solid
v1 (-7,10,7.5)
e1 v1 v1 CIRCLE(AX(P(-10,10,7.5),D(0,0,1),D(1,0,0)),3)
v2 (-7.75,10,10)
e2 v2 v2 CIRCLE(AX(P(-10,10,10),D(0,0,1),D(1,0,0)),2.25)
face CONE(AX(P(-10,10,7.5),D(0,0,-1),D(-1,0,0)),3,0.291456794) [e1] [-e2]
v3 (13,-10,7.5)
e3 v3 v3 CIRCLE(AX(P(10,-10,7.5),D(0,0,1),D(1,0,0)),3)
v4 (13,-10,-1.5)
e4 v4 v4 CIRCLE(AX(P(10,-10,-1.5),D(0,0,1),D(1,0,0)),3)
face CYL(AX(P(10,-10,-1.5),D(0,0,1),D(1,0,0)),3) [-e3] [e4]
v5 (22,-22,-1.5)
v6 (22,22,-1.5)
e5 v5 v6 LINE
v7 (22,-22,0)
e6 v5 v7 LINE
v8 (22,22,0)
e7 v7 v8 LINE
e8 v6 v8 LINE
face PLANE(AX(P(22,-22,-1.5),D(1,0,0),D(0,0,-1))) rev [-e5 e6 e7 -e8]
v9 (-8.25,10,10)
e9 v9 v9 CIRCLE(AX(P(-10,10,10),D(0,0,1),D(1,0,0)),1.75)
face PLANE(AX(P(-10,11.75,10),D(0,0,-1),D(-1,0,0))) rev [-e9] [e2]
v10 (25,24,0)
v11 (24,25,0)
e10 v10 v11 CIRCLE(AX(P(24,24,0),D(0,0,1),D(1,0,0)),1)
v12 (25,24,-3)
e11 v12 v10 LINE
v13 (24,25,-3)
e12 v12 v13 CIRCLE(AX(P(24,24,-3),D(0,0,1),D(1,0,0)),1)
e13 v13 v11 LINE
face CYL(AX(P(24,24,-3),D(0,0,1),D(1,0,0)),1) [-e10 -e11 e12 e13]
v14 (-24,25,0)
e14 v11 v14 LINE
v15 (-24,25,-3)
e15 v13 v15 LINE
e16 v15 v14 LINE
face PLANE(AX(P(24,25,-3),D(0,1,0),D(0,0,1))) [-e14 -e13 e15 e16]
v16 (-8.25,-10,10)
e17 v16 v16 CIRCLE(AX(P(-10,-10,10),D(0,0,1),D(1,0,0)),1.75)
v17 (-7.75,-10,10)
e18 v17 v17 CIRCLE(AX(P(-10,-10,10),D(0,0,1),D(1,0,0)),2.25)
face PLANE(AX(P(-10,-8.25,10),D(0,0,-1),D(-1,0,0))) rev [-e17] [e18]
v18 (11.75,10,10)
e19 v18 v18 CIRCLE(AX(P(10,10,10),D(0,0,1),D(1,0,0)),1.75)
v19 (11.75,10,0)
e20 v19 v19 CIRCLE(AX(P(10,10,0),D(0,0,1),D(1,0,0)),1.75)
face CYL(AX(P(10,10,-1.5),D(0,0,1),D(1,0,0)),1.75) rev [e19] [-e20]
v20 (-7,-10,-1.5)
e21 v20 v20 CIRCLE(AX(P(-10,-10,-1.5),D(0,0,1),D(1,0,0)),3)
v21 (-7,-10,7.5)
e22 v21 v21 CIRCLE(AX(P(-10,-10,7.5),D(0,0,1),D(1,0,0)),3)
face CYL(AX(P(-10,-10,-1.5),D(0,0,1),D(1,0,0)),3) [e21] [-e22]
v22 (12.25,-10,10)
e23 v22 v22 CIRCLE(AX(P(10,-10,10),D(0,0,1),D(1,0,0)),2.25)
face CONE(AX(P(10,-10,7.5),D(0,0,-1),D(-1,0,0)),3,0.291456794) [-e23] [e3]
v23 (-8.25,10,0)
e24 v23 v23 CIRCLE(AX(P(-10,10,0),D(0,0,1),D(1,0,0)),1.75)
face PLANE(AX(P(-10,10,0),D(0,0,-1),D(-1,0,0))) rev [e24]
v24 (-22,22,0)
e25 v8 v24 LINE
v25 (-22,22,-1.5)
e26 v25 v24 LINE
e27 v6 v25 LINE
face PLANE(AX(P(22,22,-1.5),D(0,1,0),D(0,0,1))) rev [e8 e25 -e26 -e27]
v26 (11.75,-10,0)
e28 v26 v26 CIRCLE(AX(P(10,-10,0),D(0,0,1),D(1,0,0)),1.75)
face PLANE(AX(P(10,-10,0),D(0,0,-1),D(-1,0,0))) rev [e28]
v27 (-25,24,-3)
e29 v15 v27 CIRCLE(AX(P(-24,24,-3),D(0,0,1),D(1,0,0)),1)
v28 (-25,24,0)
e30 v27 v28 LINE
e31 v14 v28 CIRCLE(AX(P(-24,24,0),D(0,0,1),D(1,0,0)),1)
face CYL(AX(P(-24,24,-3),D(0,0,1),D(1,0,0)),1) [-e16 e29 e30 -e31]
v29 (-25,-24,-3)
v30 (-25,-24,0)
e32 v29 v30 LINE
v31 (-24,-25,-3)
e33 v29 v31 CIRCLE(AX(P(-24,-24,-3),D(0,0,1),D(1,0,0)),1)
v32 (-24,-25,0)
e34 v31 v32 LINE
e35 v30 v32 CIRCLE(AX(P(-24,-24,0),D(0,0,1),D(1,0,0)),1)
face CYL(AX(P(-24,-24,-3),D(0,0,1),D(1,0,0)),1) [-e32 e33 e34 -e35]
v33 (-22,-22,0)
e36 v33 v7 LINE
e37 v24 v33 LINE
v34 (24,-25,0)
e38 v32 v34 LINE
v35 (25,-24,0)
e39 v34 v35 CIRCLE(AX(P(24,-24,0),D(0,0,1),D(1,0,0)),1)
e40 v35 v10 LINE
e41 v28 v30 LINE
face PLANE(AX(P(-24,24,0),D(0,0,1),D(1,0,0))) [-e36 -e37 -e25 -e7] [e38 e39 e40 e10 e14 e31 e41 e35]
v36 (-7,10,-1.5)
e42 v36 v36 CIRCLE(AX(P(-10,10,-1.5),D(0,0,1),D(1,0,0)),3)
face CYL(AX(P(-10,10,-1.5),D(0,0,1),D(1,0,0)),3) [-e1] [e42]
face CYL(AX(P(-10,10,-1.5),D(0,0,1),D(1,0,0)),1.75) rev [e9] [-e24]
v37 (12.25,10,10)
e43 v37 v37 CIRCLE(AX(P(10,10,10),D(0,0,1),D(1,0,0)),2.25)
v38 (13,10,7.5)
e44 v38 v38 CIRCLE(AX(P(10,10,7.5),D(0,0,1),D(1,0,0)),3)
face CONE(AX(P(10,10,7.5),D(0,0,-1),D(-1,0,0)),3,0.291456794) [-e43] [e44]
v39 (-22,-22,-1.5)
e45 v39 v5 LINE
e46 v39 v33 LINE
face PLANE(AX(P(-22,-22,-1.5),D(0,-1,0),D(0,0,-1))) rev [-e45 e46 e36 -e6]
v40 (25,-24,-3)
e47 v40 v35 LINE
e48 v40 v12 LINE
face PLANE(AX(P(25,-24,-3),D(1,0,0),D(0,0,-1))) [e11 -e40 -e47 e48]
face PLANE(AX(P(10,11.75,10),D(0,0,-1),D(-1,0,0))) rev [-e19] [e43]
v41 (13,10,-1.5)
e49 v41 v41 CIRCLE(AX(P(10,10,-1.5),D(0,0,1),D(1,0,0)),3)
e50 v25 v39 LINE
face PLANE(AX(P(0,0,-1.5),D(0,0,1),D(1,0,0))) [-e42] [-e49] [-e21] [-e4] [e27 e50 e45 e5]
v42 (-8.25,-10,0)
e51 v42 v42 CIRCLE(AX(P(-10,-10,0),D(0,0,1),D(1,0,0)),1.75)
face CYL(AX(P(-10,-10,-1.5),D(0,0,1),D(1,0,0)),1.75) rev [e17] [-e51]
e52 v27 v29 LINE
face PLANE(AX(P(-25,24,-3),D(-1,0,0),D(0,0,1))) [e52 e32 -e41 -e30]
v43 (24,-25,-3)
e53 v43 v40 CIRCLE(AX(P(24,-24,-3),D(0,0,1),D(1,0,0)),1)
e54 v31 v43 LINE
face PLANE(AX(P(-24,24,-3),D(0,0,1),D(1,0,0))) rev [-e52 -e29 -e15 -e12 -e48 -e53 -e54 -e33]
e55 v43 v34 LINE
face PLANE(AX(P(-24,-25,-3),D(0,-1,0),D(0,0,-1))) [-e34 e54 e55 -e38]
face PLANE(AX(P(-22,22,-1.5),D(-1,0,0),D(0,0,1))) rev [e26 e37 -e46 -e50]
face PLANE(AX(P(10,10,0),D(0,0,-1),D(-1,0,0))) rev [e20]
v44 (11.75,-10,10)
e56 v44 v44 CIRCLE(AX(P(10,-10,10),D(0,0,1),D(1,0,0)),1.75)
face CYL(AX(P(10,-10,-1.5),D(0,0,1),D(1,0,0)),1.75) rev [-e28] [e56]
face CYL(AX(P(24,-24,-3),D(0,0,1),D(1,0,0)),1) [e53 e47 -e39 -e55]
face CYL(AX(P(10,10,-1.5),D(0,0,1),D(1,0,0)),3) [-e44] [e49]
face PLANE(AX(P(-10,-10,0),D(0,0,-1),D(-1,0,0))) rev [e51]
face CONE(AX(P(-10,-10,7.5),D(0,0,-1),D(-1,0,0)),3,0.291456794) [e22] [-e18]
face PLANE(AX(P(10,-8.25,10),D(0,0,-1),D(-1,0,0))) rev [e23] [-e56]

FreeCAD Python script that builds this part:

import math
import FreeCAD as App
import Part
import Sketcher

V = App.Vector

doc = App.newDocument("Part")
body = doc.addObject("PartDesign::Body", "Body")

# Sketch on XY plane
sketch1 = body.newObject("Sketcher::SketchObject", "Sketch")
sketch1.AttachmentSupport = (doc.getObject("XY_Plane"), [""])
sketch1.MapMode = "FlatFace"
sketch1.addGeometry([
    Part.LineSegment(V(-25, 24, 0), V(-25, -24, 0)),  # 0
    Part.ArcOfCircle(Part.Circle(V(-24, -24, 0), V(0, 0, 1), 1), math.radians(-180), math.radians(-90)),  # 1
    Part.LineSegment(V(-24, -25, 0), V(24, -25, 0)),  # 2
    Part.ArcOfCircle(Part.Circle(V(24, -24, 0), V(0, 0, 1), 1), math.radians(-90), math.radians(0)),  # 3
    Part.LineSegment(V(25, -24, 0), V(25, 24, 0)),  # 4
    Part.ArcOfCircle(Part.Circle(V(24, 24, 0), V(0, 0, 1), 1), math.radians(0), math.radians(90)),  # 5
    Part.LineSegment(V(24, 25, 0), V(-24, 25, 0)),  # 6
    Part.ArcOfCircle(Part.Circle(V(-24, 24, 0), V(0, 0, 1), 1), math.radians(90), math.radians(180)),  # 7
], False)
sketch1.addConstraint([
    Sketcher.Constraint("Tangent", 0, 2, 1, 1),
    Sketcher.Constraint("Tangent", 1, 2, 2, 1),
    Sketcher.Constraint("Tangent", 2, 2, 3, 1),
    Sketcher.Constraint("Tangent", 3, 2, 4, 1),
    Sketcher.Constraint("Tangent", 4, 2, 5, 1),
    Sketcher.Constraint("Tangent", 5, 2, 6, 1),
    Sketcher.Constraint("Tangent", 6, 2, 7, 1),
    Sketcher.Constraint("Tangent", 7, 2, 0, 1),
    Sketcher.Constraint("Vertical", 0),
    Sketcher.Constraint("Horizontal", 2),
    Sketcher.Constraint("Vertical", 4),
    Sketcher.Constraint("Horizontal", 6),
    Sketcher.Constraint("Equal", 1, 3),
    Sketcher.Constraint("Equal", 3, 5),
    Sketcher.Constraint("Equal", 5, 7),
    Sketcher.Constraint("Symmetric", 1, 3, 5, 3, -1, 1),
    Sketcher.Constraint("Equal", 6, 0),
    Sketcher.Constraint("Radius", 1, 1.0),
    Sketcher.Constraint("DistanceX", 2, 1, 2, 2, 48.0),
])
pad1 = body.newObject("PartDesign::Pad", "Pad")
pad1.Profile = sketch1
pad1.Length = 3
pad1.Reversed = True

# Sketch on XY plane
sketch2 = body.newObject("Sketcher::SketchObject", "Sketch001")
sketch2.AttachmentSupport = (doc.getObject("XY_Plane"), [""])
sketch2.MapMode = "FlatFace"
sketch2.addGeometry([
    Part.LineSegment(V(-22, 22, 0), V(-22, -22, 0)),
    Part.LineSegment(V(-22, -22, 0), V(22, -22, 0)),
    Part.LineSegment(V(22, -22, 0), V(22, 22, 0)),
    Part.LineSegment(V(22, 22, 0), V(-22, 22, 0)),
], False)
sketch2.addConstraint([
    Sketcher.Constraint("Coincident", 0, 2, 1, 1),
    Sketcher.Constraint("Coincident", 1, 2, 2, 1),
    Sketcher.Constraint("Coincident", 2, 2, 3, 1),
    Sketcher.Constraint("Coincident", 3, 2, 0, 1),
    Sketcher.Constraint("Vertical", 0),
    Sketcher.Constraint("Horizontal", 1),
    Sketcher.Constraint("Vertical", 2),
    Sketcher.Constraint("Horizontal", 3),
    Sketcher.Constraint("Symmetric", 0, 2, 2, 2, -1, 1),
    Sketcher.Constraint("Equal", 3, 0),
    Sketcher.Constraint("DistanceX", 1, 1, 1, 2, 44.0),
])
pocket1 = body.newObject("PartDesign::Pocket", "Pocket")
pocket1.Profile = sketch2
pocket1.Length = 1.5

# Sketch on YZ plane
sketch3 = body.newObject("Sketcher::SketchObject", "Sketch002")
sketch3.AttachmentSupport = (doc.getObject("YZ_Plane"), [""])
sketch3.MapMode = "FlatFace"
sketch3.AttachmentOffset = App.Placement(V(0, 0, -10), App.Rotation())
sketch3.addGeometry([
    Part.LineSegment(V(11.75, 0, 0), V(10, 0, 0)),  # 0
    Part.LineSegment(V(10, 0, 0), V(10, -1.5, 0)),  # 1
    Part.LineSegment(V(10, -1.5, 0), V(13, -1.5, 0)),  # 2
    Part.LineSegment(V(13, -1.5, 0), V(13, 7.5, 0)),  # 3
    Part.LineSegment(V(13, 7.5, 0), V(12.25, 10, 0)),  # 4
    Part.LineSegment(V(12.25, 10, 0), V(11.75, 10, 0)),  # 5
    Part.LineSegment(V(11.75, 10, 0), V(11.75, 0, 0)),  # 6
], False)
sketch3.addGeometry(Part.LineSegment(V(10, -1.5, 0), V(10, 10, 0)), True)  # axis
sketch3.addConstraint([
    Sketcher.Constraint("Coincident", 0, 2, 1, 1),
    Sketcher.Constraint("Coincident", 1, 2, 2, 1),
    Sketcher.Constraint("Coincident", 2, 2, 3, 1),
    Sketcher.Constraint("Coincident", 3, 2, 4, 1),
    Sketcher.Constraint("Coincident", 4, 2, 5, 1),
    Sketcher.Constraint("Coincident", 5, 2, 6, 1),
    Sketcher.Constraint("Coincident", 6, 2, 0, 1),
    Sketcher.Constraint("Horizontal", 0),
    Sketcher.Constraint("Vertical", 1),
    Sketcher.Constraint("Horizontal", 2),
    Sketcher.Constraint("Vertical", 3),
    Sketcher.Constraint("Horizontal", 5),
    Sketcher.Constraint("Vertical", 6),
    Sketcher.Constraint("Vertical", 7),
    Sketcher.Constraint("Coincident", 7, 1, 1, 2),
    Sketcher.Constraint("PointOnObject", 0, 2, -1),
    Sketcher.Constraint("Horizontal", 5, 2, 7, 2),
    Sketcher.Constraint("DistanceX", 2, 1, 2, 2, 3.0),
    Sketcher.Constraint("DistanceY", 3, 1, 3, 2, 9.0),
    Sketcher.Constraint("DistanceY", 6, 2, 6, 1, 10.0),
    Sketcher.Constraint("DistanceX", 5, 2, 5, 1, 0.5),
    Sketcher.Constraint("DistanceY", 1, 2, 1, 1, 1.5),
    Sketcher.Constraint("DistanceX", -1, 1, 0, 2, 10.0),
    Sketcher.Constraint("DistanceX", 0, 2, 0, 1, 1.75),
])
revolution = body.newObject("PartDesign::Revolution", "Revolution")
revolution.Profile = sketch3
revolution.ReferenceAxis = (sketch3, ["Axis0"])
revolution.Angle = 360

# Sketch on YZ plane
sketch4 = body.newObject("Sketcher::SketchObject", "Sketch003")
sketch4.AttachmentSupport = (doc.getObject("YZ_Plane"), [""])
sketch4.MapMode = "FlatFace"
sketch4.AttachmentOffset = App.Placement(V(0, 0, 10), App.Rotation())
sketch4.addGeometry([
    Part.LineSegment(V(11.75, 0, 0), V(10, 0, 0)),  # 0
    Part.LineSegment(V(10, 0, 0), V(10, -1.5, 0)),  # 1
    Part.LineSegment(V(10, -1.5, 0), V(13, -1.5, 0)),  # 2
    Part.LineSegment(V(13, -1.5, 0), V(13, 7.5, 0)),  # 3
    Part.LineSegment(V(13, 7.5, 0), V(12.25, 10, 0)),  # 4
    Part.LineSegment(V(12.25, 10, 0), V(11.75, 10, 0)),  # 5
    Part.LineSegment(V(11.75, 10, 0), V(11.75, 0, 0)),  # 6
], False)
sketch4.addGeometry(Part.LineSegment(V(10, -1.5, 0), V(10, 10, 0)), True)  # axis
sketch4.addConstraint([
    Sketcher.Constraint("Coincident", 0, 2, 1, 1),
    Sketcher.Constraint("Coincident", 1, 2, 2, 1),
    Sketcher.Constraint("Coincident", 2, 2, 3, 1),
    Sketcher.Constraint("Coincident", 3, 2, 4, 1),
    Sketcher.Constraint("Coincident", 4, 2, 5, 1),
    Sketcher.Constraint("Coincident", 5, 2, 6, 1),
    Sketcher.Constraint("Coincident", 6, 2, 0, 1),
    Sketcher.Constraint("Horizontal", 0),
    Sketcher.Constraint("Vertical", 1),
    Sketcher.Constraint("Horizontal", 2),
    Sketcher.Constraint("Vertical", 3),
    Sketcher.Constraint("Horizontal", 5),
    Sketcher.Constraint("Vertical", 6),
    Sketcher.Constraint("Vertical", 7),
    Sketcher.Constraint("Coincident", 7, 1, 1, 2),
    Sketcher.Constraint("PointOnObject", 0, 2, -1),
    Sketcher.Constraint("Horizontal", 5, 2, 7, 2),
    Sketcher.Constraint("DistanceX", 2, 1, 2, 2, 3.0),
    Sketcher.Constraint("DistanceY", 3, 1, 3, 2, 9.0),
    Sketcher.Constraint("DistanceY", 6, 2, 6, 1, 10.0),
    Sketcher.Constraint("DistanceX", 5, 2, 5, 1, 0.5),
    Sketcher.Constraint("DistanceY", 1, 2, 1, 1, 1.5),
    Sketcher.Constraint("DistanceX", -1, 1, 0, 2, 10.0),
    Sketcher.Constraint("DistanceX", 0, 2, 0, 1, 1.75),
])
revolution2 = body.newObject("PartDesign::Revolution", "Revolution001")
revolution2.Profile = sketch4
revolution2.ReferenceAxis = (sketch4, ["Axis0"])
revolution2.Angle = 360

# Sketch on YZ plane
sketch5 = body.newObject("Sketcher::SketchObject", "Sketch004")
sketch5.AttachmentSupport = (doc.getObject("YZ_Plane"), [""])
sketch5.MapMode = "FlatFace"
sketch5.AttachmentOffset = App.Placement(V(0, 0, 10), App.Rotation())
sketch5.addGeometry([
    Part.LineSegment(V(-8.25, 0, 0), V(-10, 0, 0)),  # 0
    Part.LineSegment(V(-10, 0, 0), V(-10, -1.5, 0)),  # 1
    Part.LineSegment(V(-10, -1.5, 0), V(-7, -1.5, 0)),  # 2
    Part.LineSegment(V(-7, -1.5, 0), V(-7, 7.5, 0)),  # 3
    Part.LineSegment(V(-7, 7.5, 0), V(-7.75, 10, 0)),  # 4
    Part.LineSegment(V(-7.75, 10, 0), V(-8.25, 10, 0)),  # 5
    Part.LineSegment(V(-8.25, 10, 0), V(-8.25, 0, 0)),  # 6
], False)
sketch5.addGeometry(Part.LineSegment(V(-10, -1.5, 0), V(-10, 10, 0)), True)  # axis
sketch5.addConstraint([
    Sketcher.Constraint("Coincident", 0, 2, 1, 1),
    Sketcher.Constraint("Coincident", 1, 2, 2, 1),
    Sketcher.Constraint("Coincident", 2, 2, 3, 1),
    Sketcher.Constraint("Coincident", 3, 2, 4, 1),
    Sketcher.Constraint("Coincident", 4, 2, 5, 1),
    Sketcher.Constraint("Coincident", 5, 2, 6, 1),
    Sketcher.Constraint("Coincident", 6, 2, 0, 1),
    Sketcher.Constraint("Horizontal", 0),
    Sketcher.Constraint("Vertical", 1),
    Sketcher.Constraint("Horizontal", 2),
    Sketcher.Constraint("Vertical", 3),
    Sketcher.Constraint("Horizontal", 5),
    Sketcher.Constraint("Vertical", 6),
    Sketcher.Constraint("Vertical", 7),
    Sketcher.Constraint("Coincident", 7, 1, 1, 2),
    Sketcher.Constraint("PointOnObject", 0, 2, -1),
    Sketcher.Constraint("Horizontal", 5, 2, 7, 2),
    Sketcher.Constraint("DistanceX", 2, 1, 2, 2, 3.0),
    Sketcher.Constraint("DistanceY", 3, 1, 3, 2, 9.0),
    Sketcher.Constraint("DistanceY", 6, 2, 6, 1, 10.0),
    Sketcher.Constraint("DistanceX", 5, 2, 5, 1, 0.5),
    Sketcher.Constraint("DistanceY", 1, 2, 1, 1, 1.5),
    Sketcher.Constraint("DistanceX", 0, 2, -1, 1, 10.0),
    Sketcher.Constraint("DistanceX", 0, 2, 0, 1, 1.75),
])
revolution3 = body.newObject("PartDesign::Revolution", "Revolution002")
revolution3.Profile = sketch5
revolution3.ReferenceAxis = (sketch5, ["Axis0"])
revolution3.Angle = 360

# Sketch on YZ plane
sketch6 = body.newObject("Sketcher::SketchObject", "Sketch005")
sketch6.AttachmentSupport = (doc.getObject("YZ_Plane"), [""])
sketch6.MapMode = "FlatFace"
sketch6.AttachmentOffset = App.Placement(V(0, 0, -10), App.Rotation())
sketch6.addGeometry([
    Part.LineSegment(V(-8.25, 0, 0), V(-10, 0, 0)),  # 0
    Part.LineSegment(V(-10, 0, 0), V(-10, -1.5, 0)),  # 1
    Part.LineSegment(V(-10, -1.5, 0), V(-7, -1.5, 0)),  # 2
    Part.LineSegment(V(-7, -1.5, 0), V(-7, 7.5, 0)),  # 3
    Part.LineSegment(V(-7, 7.5, 0), V(-7.75, 10, 0)),  # 4
    Part.LineSegment(V(-7.75, 10, 0), V(-8.25, 10, 0)),  # 5
    Part.LineSegment(V(-8.25, 10, 0), V(-8.25, 0, 0)),  # 6
], False)
sketch6.addGeometry(Part.LineSegment(V(-10, -1.5, 0), V(-10, 10, 0)), True)  # axis
sketch6.addConstraint([
    Sketcher.Constraint("Coincident", 0, 2, 1, 1),
    Sketcher.Constraint("Coincident", 1, 2, 2, 1),
    Sketcher.Constraint("Coincident", 2, 2, 3, 1),
    Sketcher.Constraint("Coincident", 3, 2, 4, 1),
    Sketcher.Constraint("Coincident", 4, 2, 5, 1),
    Sketcher.Constraint("Coincident", 5, 2, 6, 1),
    Sketcher.Constraint("Coincident", 6, 2, 0, 1),
    Sketcher.Constraint("Horizontal", 0),
    Sketcher.Constraint("Vertical", 1),
    Sketcher.Constraint("Horizontal", 2),
    Sketcher.Constraint("Vertical", 3),
    Sketcher.Constraint("Horizontal", 5),
    Sketcher.Constraint("Vertical", 6),
    Sketcher.Constraint("Vertical", 7),
    Sketcher.Constraint("Coincident", 7, 1, 1, 2),
    Sketcher.Constraint("PointOnObject", 0, 2, -1),
    Sketcher.Constraint("Horizontal", 5, 2, 7, 2),
    Sketcher.Constraint("DistanceX", 2, 1, 2, 2, 3.0),
    Sketcher.Constraint("DistanceY", 3, 1, 3, 2, 9.0),
    Sketcher.Constraint("DistanceY", 6, 2, 6, 1, 10.0),
    Sketcher.Constraint("DistanceX", 5, 2, 5, 1, 0.5),
    Sketcher.Constraint("DistanceY", 1, 2, 1, 1, 1.5),
    Sketcher.Constraint("DistanceX", 0, 2, -1, 1, 10.0),
    Sketcher.Constraint("DistanceX", 0, 2, 0, 1, 1.75),
])
revolution4 = body.newObject("PartDesign::Revolution", "Revolution003")
revolution4.Profile = sketch6
revolution4.ReferenceAxis = (sketch6, ["Axis0"])
revolution4.Angle = 360

doc.recompute()
